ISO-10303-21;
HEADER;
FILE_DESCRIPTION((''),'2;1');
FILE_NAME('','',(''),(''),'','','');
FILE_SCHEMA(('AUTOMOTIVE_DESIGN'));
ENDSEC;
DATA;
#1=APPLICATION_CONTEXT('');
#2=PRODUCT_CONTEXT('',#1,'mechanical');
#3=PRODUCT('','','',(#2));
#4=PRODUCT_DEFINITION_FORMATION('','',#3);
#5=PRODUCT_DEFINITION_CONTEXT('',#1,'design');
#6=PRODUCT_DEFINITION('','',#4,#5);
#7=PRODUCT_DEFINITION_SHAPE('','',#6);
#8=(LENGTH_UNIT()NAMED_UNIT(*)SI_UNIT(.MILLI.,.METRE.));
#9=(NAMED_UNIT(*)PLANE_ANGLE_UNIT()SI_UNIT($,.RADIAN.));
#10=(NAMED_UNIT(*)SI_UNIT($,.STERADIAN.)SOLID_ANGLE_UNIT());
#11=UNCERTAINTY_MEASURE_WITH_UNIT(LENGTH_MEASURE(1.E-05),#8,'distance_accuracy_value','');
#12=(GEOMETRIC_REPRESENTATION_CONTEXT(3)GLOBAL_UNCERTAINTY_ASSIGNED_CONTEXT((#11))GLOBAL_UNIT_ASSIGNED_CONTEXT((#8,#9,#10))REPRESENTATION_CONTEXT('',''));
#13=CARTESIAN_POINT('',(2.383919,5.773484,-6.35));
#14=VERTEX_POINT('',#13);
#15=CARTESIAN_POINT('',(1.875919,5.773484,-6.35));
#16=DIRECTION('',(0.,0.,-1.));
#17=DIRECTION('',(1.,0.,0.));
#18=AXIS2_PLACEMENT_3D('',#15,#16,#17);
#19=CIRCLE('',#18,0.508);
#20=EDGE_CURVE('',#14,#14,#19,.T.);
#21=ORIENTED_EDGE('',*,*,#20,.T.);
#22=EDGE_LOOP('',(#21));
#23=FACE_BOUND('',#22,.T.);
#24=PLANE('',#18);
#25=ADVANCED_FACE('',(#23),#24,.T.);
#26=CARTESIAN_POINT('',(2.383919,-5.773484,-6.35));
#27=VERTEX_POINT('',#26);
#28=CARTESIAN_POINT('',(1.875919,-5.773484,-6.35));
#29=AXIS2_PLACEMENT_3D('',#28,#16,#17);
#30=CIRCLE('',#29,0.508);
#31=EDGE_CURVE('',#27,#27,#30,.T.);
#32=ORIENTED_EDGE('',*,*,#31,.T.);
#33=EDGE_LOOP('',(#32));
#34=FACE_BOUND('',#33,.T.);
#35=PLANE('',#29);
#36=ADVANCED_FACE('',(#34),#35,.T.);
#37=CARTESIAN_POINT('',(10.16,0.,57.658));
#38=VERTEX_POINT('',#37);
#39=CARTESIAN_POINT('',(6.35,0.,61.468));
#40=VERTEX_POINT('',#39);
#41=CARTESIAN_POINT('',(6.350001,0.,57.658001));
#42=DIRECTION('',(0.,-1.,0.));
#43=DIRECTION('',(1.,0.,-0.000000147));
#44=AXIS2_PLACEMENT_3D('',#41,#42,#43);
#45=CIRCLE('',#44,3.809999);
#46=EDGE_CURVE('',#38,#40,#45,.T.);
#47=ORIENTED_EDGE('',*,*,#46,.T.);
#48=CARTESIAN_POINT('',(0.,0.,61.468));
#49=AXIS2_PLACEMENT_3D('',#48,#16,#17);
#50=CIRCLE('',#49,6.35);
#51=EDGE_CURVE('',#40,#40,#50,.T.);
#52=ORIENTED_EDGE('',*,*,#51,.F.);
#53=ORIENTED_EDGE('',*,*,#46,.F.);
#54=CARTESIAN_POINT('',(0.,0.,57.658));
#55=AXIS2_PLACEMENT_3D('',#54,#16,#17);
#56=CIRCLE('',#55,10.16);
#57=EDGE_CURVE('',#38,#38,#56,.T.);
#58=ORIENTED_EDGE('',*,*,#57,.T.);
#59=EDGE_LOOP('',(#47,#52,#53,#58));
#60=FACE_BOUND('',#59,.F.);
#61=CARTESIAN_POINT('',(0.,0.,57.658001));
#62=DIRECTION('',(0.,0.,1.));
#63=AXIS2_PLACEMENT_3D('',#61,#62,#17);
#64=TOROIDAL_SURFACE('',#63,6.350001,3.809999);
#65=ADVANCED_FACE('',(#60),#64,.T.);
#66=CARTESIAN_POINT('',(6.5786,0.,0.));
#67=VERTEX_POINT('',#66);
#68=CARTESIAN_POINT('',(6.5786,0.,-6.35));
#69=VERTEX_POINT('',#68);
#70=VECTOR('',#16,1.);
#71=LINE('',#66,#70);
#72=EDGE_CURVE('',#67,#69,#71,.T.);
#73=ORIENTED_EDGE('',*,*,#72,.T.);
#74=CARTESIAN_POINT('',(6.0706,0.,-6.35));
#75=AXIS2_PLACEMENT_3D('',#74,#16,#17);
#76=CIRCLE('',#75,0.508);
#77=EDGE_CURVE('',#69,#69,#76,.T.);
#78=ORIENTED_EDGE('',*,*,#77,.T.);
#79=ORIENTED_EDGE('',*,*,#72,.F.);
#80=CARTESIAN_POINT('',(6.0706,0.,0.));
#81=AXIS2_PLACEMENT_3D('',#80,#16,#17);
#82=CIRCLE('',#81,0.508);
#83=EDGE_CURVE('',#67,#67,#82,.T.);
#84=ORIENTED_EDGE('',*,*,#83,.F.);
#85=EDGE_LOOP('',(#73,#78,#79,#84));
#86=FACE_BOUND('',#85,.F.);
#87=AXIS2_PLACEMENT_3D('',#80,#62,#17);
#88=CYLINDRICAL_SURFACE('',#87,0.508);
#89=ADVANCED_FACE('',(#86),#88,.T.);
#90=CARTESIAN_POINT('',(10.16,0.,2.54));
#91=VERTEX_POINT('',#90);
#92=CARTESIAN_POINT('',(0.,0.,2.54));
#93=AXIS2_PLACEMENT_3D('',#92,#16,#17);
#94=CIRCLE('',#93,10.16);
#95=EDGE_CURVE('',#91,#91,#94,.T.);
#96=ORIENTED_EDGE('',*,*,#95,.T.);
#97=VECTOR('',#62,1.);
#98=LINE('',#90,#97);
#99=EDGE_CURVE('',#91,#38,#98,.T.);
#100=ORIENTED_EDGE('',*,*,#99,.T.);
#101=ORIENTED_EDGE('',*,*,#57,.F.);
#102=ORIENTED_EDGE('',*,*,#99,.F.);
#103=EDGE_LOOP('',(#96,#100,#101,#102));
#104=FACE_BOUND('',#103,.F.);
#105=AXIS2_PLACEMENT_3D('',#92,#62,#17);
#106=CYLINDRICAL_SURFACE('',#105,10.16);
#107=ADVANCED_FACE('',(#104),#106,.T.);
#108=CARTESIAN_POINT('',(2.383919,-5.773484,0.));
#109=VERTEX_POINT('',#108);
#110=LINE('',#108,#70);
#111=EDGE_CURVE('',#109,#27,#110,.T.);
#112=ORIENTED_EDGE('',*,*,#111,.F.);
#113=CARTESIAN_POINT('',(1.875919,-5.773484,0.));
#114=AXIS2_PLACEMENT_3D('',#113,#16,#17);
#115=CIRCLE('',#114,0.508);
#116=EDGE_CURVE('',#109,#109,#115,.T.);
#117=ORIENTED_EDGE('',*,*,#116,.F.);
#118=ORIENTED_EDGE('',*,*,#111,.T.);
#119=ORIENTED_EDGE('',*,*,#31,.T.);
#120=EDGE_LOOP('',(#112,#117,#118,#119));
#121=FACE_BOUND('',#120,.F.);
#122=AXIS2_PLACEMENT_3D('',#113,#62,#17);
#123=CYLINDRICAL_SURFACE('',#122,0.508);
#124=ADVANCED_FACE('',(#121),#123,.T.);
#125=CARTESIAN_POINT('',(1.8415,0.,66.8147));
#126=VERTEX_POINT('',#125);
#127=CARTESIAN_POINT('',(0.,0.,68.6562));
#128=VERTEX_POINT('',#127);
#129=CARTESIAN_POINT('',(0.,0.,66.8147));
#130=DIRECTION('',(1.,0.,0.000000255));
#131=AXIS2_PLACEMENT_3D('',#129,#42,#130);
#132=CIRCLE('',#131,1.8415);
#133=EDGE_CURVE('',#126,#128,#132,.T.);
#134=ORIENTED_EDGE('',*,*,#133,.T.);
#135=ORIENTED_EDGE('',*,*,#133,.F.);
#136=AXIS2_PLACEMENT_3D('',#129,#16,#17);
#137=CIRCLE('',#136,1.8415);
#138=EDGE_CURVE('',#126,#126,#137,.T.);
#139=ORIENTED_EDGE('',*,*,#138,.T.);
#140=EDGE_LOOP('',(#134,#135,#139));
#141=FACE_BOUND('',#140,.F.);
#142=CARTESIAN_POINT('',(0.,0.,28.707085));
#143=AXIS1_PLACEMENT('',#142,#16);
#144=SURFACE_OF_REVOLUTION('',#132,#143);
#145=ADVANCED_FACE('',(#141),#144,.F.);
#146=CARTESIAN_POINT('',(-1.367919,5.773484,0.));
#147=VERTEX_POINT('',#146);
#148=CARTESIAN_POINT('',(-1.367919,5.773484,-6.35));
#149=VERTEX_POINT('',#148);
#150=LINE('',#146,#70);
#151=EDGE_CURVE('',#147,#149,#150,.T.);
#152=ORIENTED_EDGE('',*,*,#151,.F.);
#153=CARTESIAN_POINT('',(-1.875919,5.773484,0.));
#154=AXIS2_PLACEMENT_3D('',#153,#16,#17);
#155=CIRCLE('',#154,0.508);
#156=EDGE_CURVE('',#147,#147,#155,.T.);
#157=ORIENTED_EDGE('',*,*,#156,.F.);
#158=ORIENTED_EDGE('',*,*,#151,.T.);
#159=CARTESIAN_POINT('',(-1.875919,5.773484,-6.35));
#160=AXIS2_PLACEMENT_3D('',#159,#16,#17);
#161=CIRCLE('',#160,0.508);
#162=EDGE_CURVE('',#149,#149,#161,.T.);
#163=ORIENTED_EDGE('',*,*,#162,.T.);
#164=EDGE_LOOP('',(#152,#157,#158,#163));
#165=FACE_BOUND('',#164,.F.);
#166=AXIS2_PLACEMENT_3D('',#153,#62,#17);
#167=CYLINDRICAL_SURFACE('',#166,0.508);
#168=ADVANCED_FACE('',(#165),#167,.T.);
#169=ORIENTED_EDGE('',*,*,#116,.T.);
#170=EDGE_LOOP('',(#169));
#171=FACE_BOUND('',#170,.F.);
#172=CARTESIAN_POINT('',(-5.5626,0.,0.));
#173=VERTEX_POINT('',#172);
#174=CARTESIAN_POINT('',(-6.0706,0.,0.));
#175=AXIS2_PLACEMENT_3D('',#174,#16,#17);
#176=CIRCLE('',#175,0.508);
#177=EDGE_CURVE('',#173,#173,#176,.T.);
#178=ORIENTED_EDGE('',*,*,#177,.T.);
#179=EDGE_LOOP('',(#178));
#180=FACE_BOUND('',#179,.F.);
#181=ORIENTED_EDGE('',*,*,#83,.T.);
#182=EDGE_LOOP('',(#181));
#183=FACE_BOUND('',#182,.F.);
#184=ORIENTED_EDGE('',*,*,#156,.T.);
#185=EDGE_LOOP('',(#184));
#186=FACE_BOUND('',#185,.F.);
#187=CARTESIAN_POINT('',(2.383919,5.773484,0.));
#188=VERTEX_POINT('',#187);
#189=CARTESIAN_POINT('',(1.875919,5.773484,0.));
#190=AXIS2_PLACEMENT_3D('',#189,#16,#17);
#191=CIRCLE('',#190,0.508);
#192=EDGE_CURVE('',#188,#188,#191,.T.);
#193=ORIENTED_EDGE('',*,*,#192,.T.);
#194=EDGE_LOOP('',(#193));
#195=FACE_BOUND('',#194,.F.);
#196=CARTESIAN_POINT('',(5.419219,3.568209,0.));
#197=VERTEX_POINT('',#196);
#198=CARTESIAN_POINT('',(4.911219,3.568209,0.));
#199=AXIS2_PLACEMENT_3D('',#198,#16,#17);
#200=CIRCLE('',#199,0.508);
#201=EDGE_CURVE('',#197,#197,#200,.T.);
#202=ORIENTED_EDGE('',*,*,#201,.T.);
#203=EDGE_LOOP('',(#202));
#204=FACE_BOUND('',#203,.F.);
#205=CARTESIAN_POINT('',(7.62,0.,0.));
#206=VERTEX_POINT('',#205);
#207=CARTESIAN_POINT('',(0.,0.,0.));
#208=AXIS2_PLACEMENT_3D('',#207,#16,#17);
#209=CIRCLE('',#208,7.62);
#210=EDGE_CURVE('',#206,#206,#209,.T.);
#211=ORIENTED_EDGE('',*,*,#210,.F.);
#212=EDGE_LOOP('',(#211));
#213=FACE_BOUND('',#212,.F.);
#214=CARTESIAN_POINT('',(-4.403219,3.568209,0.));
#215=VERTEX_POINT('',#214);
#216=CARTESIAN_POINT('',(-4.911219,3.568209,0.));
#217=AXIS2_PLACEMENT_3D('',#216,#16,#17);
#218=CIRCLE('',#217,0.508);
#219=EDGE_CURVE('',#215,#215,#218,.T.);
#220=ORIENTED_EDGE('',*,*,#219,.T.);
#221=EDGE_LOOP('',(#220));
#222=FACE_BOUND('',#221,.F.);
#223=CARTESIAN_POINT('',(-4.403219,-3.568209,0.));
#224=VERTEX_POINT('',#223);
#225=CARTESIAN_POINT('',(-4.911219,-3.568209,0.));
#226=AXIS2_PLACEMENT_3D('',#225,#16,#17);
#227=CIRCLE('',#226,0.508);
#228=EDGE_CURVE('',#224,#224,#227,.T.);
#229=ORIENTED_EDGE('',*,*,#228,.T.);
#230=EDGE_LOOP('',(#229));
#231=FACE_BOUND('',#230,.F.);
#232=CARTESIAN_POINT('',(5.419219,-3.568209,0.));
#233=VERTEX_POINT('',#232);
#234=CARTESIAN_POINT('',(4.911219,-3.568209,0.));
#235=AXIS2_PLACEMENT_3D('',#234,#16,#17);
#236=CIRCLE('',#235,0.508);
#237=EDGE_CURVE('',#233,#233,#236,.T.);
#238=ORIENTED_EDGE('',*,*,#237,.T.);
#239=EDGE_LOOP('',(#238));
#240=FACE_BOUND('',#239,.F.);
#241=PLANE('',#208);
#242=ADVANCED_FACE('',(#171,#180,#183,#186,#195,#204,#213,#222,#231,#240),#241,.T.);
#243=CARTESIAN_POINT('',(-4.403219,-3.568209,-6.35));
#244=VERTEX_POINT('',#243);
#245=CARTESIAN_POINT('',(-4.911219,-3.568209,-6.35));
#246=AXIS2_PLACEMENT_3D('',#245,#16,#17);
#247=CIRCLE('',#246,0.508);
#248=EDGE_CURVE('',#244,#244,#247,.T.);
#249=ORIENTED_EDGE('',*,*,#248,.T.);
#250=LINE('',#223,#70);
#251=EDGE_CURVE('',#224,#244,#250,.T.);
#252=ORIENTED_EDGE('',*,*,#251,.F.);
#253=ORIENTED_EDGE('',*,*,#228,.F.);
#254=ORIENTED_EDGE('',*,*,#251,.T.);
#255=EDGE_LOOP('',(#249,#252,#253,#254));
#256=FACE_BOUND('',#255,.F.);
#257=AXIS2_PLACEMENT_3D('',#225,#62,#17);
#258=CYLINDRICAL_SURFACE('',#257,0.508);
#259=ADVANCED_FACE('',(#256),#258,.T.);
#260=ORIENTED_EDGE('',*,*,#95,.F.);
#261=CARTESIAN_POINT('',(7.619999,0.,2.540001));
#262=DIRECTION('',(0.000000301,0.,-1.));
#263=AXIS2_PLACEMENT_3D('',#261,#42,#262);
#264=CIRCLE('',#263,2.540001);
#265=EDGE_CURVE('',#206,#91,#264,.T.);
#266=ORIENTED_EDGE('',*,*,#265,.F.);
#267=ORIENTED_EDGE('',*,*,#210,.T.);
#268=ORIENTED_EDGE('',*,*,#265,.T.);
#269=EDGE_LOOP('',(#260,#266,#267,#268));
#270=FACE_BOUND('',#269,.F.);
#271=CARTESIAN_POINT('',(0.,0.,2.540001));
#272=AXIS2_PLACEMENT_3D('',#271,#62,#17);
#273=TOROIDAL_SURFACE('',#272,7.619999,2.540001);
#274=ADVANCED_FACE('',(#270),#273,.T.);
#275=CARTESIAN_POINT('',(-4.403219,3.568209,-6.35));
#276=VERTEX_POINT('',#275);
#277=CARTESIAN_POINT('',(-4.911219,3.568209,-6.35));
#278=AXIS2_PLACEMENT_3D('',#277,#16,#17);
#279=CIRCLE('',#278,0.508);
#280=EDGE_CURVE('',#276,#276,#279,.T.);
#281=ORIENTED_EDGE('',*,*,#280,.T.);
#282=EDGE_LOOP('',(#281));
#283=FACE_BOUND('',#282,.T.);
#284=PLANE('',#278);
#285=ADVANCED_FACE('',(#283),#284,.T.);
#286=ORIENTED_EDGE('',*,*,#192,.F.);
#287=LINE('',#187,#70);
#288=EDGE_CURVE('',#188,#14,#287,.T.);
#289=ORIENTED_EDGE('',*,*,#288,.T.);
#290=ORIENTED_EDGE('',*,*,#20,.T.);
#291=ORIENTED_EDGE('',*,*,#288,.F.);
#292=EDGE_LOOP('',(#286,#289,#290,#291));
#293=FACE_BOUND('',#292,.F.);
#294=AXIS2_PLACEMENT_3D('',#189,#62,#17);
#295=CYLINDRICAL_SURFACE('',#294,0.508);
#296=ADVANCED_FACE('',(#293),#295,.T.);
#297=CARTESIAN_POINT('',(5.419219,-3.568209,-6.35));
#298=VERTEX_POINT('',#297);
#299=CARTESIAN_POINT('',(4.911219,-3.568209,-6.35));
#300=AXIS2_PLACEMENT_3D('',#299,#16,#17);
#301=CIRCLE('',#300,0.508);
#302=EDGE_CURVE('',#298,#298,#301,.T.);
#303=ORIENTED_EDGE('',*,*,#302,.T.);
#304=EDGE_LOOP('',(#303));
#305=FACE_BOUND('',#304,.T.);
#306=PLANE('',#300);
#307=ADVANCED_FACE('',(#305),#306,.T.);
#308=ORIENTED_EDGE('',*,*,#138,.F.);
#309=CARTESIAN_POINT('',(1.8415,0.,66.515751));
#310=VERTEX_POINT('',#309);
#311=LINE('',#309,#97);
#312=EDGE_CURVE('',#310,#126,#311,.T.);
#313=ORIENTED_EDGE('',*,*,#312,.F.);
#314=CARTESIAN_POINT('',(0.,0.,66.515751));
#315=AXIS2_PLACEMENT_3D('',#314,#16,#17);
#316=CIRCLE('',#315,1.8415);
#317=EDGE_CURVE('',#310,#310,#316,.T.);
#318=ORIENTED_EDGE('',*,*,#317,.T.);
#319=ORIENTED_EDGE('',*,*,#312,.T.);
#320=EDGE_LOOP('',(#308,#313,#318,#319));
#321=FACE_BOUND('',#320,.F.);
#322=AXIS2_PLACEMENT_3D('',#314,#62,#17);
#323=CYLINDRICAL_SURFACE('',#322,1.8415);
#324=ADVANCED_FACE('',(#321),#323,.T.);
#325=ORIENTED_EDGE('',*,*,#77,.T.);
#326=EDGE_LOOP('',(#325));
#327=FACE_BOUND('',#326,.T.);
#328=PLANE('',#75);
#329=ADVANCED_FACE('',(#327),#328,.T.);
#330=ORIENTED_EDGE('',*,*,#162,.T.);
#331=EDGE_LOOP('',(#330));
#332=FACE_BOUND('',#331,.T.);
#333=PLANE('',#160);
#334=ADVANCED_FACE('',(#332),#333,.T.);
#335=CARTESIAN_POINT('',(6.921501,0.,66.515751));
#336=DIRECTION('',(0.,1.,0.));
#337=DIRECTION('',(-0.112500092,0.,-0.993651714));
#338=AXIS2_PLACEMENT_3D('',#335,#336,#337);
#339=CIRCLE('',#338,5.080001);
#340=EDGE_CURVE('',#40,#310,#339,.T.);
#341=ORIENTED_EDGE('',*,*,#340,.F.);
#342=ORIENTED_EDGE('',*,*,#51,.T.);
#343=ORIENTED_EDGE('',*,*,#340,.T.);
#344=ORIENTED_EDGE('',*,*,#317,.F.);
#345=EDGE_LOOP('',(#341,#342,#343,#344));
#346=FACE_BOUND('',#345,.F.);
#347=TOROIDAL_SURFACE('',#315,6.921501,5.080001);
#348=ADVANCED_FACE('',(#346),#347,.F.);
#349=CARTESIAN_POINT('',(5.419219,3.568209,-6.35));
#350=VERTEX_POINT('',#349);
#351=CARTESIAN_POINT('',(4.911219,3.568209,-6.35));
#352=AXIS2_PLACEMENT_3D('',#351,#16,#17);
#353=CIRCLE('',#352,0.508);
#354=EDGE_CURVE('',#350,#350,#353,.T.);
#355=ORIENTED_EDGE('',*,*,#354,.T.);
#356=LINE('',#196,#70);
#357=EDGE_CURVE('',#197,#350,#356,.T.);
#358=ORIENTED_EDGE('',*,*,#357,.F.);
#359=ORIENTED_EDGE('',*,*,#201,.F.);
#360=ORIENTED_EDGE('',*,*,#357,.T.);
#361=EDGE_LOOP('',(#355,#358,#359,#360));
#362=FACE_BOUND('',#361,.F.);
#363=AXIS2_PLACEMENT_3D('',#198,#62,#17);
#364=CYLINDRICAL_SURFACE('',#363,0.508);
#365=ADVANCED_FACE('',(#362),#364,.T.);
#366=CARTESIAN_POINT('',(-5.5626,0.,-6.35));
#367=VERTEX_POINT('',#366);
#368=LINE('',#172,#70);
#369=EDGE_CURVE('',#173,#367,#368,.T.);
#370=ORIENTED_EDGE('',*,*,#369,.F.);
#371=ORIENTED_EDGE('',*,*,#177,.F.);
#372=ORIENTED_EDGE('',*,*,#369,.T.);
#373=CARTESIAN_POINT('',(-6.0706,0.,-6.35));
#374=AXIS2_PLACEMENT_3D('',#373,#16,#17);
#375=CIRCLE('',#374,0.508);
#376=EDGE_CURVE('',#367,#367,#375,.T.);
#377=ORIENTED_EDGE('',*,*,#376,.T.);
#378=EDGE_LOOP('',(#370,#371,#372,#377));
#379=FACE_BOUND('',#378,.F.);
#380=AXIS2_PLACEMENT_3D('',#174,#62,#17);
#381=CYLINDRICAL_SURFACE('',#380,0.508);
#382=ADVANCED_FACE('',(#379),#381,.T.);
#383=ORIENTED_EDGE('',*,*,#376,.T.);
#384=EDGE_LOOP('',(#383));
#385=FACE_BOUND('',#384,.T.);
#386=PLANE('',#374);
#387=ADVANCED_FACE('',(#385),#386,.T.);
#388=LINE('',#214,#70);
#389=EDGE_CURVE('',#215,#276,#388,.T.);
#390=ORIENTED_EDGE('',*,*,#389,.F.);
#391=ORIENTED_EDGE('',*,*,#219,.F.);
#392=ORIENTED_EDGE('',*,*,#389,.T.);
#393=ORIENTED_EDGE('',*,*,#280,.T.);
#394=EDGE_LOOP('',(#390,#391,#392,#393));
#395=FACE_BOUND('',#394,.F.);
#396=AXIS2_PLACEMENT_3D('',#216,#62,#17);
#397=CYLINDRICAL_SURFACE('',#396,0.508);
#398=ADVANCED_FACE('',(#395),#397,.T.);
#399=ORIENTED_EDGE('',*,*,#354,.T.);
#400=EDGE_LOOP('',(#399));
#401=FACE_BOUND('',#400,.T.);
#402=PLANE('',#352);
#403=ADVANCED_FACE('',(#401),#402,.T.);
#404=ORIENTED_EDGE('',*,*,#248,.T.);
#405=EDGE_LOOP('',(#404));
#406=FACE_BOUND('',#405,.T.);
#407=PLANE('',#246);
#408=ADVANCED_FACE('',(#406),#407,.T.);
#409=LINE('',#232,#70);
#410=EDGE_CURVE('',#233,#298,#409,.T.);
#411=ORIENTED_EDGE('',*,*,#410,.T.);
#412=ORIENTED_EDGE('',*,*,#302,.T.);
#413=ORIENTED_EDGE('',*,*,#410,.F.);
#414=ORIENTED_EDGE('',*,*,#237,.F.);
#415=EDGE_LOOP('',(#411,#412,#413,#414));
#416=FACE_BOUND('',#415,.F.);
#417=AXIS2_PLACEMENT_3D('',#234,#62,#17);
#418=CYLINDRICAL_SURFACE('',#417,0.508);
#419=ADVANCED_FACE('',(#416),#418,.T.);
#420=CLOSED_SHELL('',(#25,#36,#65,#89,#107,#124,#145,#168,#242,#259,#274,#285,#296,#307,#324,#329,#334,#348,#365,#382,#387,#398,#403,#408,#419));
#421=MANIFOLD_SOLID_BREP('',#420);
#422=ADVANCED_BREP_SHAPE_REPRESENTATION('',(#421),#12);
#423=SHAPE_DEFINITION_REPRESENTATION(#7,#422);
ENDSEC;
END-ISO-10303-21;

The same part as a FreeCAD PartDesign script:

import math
import FreeCAD as App
import Part
import Sketcher
from FreeCAD import Vector
Q = App.Units.Quantity

doc = App.newDocument("Part")
body = doc.addObject("PartDesign::Body", "Body")

sketch1 = body.newObject("Sketcher::SketchObject", "Sketch")
sketch1.AttachmentSupport = (doc.getObject("XZ_Plane"), [""])
sketch1.MapMode = "FlatFace"
sketch1.addGeometry(Part.LineSegment(Vector(0, 68.66, 0), Vector(0, 0, 0)), False)
sketch1.addGeometry(Part.LineSegment(Vector(0, 0, 0), Vector(7.62, 0, 0)), False)
sketch1.addGeometry(Part.ArcOfCircle(Part.Circle(Vector(7.62, 2.54, 0), Vector(0, 0, 1), 2.54), math.radians(-90), math.radians(0)), False)
sketch1.addGeometry(Part.LineSegment(Vector(10.16, 2.54, 0), Vector(10.16, 57.66, 0)), False)
sketch1.addGeometry(Part.ArcOfCircle(Part.Circle(Vector(6.35, 57.66, 0), Vector(0, 0, 1), 3.81), math.radians(0), math.radians(90)), False)
sketch1.addGeometry(Part.ArcOfCircle(Part.Circle(Vector(6.92, 66.52, 0), Vector(0, 0, 1), 5.08), math.radians(-180), math.radians(-96)), False)
sketch1.addGeometry(Part.LineSegment(Vector(1.84, 66.52, 0), Vector(1.84, 66.81, 0)), False)
sketch1.addGeometry(Part.ArcOfCircle(Part.Circle(Vector(0, 66.81, 0), Vector(0, 0, 1), 1.84), math.radians(0), math.radians(90)), False)
sketch1.addConstraint(Sketcher.Constraint("Coincident", 0, 2, 1, 1))
sketch1.addConstraint(Sketcher.Constraint("Tangent", 1, 2, 2, 1))
sketch1.addConstraint(Sketcher.Constraint("Tangent", 2, 2, 3, 1))
sketch1.addConstraint(Sketcher.Constraint("Tangent", 3, 2, 4, 1))
sketch1.addConstraint(Sketcher.Constraint("Coincident", 4, 2, 5, 2))
sketch1.addConstraint(Sketcher.Constraint("Tangent", 5, 1, 6, 1))
sketch1.addConstraint(Sketcher.Constraint("Tangent", 6, 2, 7, 1))
sketch1.addConstraint(Sketcher.Constraint("Coincident", 7, 2, 0, 1))
sketch1.addConstraint(Sketcher.Constraint("Vertical", 0))
sketch1.addConstraint(Sketcher.Constraint("Horizontal", 1))
sketch1.addConstraint(Sketcher.Constraint("Vertical", 3))
sketch1.addConstraint(Sketcher.Constraint("Vertical", 6))
sketch1.addConstraint(Sketcher.Constraint("Coincident", 0, 2, -1, 1))
sketch1.addConstraint(Sketcher.Constraint("PointOnObject", 7, 3, -2))
sketch1.addConstraint(Sketcher.Constraint("Radius", 2, Q("0.1 in")))
sketch1.addConstraint(Sketcher.Constraint("Radius", 5, Q("0.2 in")))
sketch1.addConstraint(Sketcher.Constraint("Radius", 4, Q("0.15 in")))
sketch1.addConstraint(Sketcher.Constraint("DistanceX", 1, 1, 1, 2, Q("0.3 in")))
sketch1.addConstraint(Sketcher.Constraint("DistanceY", 3, 1, 3, 2, Q("2.17 in")))
sketch1.addConstraint(Sketcher.Constraint("Radius", 7, Q("0.0725 in")))
sketch1.addConstraint(Sketcher.Constraint("DistanceY", 0, 2, 0, 1, Q("2.703 in")))
sketch1.addConstraint(Sketcher.Constraint("DistanceX", -1, 1, 4, 2, Q("0.25 in")))
revolution = body.newObject("PartDesign::Revolution", "Revolution")
revolution.Profile = sketch1
revolution.ReferenceAxis = (sketch1, ["V_Axis"])
revolution.Angle = 360

sketch2 = body.newObject("Sketcher::SketchObject", "Sketch001")
sketch2.AttachmentSupport = (doc.getObject("XY_Plane"), [""])
sketch2.MapMode = "FlatFace"
sketch2.addGeometry(Part.Circle(Vector(-6.1, 0, 0), Vector(0, 0, 1), 0.5), False)
sketch2.addGeometry(Part.Circle(Vector(6.1, 0, 0), Vector(0, 0, 1), 0.5), False)
sketch2.addGeometry(Part.Circle(Vector(-4.9, 3.6, 0), Vector(0, 0, 1), 0.5), False)
sketch2.addGeometry(Part.Circle(Vector(-1.9, 5.8, 0), Vector(0, 0, 1), 0.5), False)
sketch2.addGeometry(Part.Circle(Vector(1.9, 5.8, 0), Vector(0, 0, 1), 0.5), False)
sketch2.addGeometry(Part.Circle(Vector(4.9, 3.6, 0), Vector(0, 0, 1), 0.5), False)
sketch2.addGeometry(Part.Circle(Vector(4.9, -3.6, 0), Vector(0, 0, 1), 0.5), False)
sketch2.addGeometry(Part.Circle(Vector(1.9, -5.8, 0), Vector(0, 0, 1), 0.5), False)
sketch2.addGeometry(Part.Circle(Vector(-4.9, -3.6, 0), Vector(0, 0, 1), 0.5), False)
sketch2.addConstraint(Sketcher.Constraint("Equal", 0, 1))
sketch2.addConstraint(Sketcher.Constraint("Equal", 1, 2))
sketch2.addConstraint(Sketcher.Constraint("Equal", 2, 3))
sketch2.addConstraint(Sketcher.Constraint("Equal", 3, 4))
sketch2.addConstraint(Sketcher.Constraint("Equal", 4, 5))
sketch2.addConstraint(Sketcher.Constraint("Equal", 5, 6))
sketch2.addConstraint(Sketcher.Constraint("Equal", 6, 7))
sketch2.addConstraint(Sketcher.Constraint("Equal", 7, 8))
sketch2.addConstraint(Sketcher.Constraint("Symmetric", 0, 3, 1, 3, -1, 1))
sketch2.addConstraint(Sketcher.Constraint("Symmetric", 2, 3, 6, 3, -1, 1))
sketch2.addConstraint(Sketcher.Constraint("Symmetric", 3, 3, 7, 3, -1, 1))
sketch2.addConstraint(Sketcher.Constraint("Symmetric", 5, 3, 8, 3, -1, 1))
sketch2.addConstraint(Sketcher.Constraint("Symmetric", 3, 3, 4, 3, -2))
sketch2.addConstraint(Sketcher.Constraint("Symmetric", 2, 3, 5, 3, -2))
sketch2.addConstraint(Sketcher.Constraint("PointOnObject", 0, 3, -1))
sketch2.addConstraint(Sketcher.Constraint("Diameter", 0, Q("0.04 in")))
sketch2.addConstraint(Sketcher.Constraint("DistanceX", 0, 3, -1, 1, Q("0.239 in")))
sketch2.addConstraint(Sketcher.Constraint("DistanceX", 2, 3, 3, 3, Q("0.1195 in")))
sketch2.addConstraint(Sketcher.Constraint("DistanceX", 2, 3, -1, 1, 4.911219))
sketch2.addConstraint(Sketcher.Constraint("DistanceY", -1, 1, 2, 3, 3.568209))
sketch2.addConstraint(Sketcher.Constraint("DistanceY", -1, 1, 3, 3, 5.773484))
pad1 = body.newObject("PartDesign::Pad", "Pad")
pad1.Profile = sketch2
pad1.Length = Q("0.25 in")
pad1.Reversed = True

doc.recompute()
